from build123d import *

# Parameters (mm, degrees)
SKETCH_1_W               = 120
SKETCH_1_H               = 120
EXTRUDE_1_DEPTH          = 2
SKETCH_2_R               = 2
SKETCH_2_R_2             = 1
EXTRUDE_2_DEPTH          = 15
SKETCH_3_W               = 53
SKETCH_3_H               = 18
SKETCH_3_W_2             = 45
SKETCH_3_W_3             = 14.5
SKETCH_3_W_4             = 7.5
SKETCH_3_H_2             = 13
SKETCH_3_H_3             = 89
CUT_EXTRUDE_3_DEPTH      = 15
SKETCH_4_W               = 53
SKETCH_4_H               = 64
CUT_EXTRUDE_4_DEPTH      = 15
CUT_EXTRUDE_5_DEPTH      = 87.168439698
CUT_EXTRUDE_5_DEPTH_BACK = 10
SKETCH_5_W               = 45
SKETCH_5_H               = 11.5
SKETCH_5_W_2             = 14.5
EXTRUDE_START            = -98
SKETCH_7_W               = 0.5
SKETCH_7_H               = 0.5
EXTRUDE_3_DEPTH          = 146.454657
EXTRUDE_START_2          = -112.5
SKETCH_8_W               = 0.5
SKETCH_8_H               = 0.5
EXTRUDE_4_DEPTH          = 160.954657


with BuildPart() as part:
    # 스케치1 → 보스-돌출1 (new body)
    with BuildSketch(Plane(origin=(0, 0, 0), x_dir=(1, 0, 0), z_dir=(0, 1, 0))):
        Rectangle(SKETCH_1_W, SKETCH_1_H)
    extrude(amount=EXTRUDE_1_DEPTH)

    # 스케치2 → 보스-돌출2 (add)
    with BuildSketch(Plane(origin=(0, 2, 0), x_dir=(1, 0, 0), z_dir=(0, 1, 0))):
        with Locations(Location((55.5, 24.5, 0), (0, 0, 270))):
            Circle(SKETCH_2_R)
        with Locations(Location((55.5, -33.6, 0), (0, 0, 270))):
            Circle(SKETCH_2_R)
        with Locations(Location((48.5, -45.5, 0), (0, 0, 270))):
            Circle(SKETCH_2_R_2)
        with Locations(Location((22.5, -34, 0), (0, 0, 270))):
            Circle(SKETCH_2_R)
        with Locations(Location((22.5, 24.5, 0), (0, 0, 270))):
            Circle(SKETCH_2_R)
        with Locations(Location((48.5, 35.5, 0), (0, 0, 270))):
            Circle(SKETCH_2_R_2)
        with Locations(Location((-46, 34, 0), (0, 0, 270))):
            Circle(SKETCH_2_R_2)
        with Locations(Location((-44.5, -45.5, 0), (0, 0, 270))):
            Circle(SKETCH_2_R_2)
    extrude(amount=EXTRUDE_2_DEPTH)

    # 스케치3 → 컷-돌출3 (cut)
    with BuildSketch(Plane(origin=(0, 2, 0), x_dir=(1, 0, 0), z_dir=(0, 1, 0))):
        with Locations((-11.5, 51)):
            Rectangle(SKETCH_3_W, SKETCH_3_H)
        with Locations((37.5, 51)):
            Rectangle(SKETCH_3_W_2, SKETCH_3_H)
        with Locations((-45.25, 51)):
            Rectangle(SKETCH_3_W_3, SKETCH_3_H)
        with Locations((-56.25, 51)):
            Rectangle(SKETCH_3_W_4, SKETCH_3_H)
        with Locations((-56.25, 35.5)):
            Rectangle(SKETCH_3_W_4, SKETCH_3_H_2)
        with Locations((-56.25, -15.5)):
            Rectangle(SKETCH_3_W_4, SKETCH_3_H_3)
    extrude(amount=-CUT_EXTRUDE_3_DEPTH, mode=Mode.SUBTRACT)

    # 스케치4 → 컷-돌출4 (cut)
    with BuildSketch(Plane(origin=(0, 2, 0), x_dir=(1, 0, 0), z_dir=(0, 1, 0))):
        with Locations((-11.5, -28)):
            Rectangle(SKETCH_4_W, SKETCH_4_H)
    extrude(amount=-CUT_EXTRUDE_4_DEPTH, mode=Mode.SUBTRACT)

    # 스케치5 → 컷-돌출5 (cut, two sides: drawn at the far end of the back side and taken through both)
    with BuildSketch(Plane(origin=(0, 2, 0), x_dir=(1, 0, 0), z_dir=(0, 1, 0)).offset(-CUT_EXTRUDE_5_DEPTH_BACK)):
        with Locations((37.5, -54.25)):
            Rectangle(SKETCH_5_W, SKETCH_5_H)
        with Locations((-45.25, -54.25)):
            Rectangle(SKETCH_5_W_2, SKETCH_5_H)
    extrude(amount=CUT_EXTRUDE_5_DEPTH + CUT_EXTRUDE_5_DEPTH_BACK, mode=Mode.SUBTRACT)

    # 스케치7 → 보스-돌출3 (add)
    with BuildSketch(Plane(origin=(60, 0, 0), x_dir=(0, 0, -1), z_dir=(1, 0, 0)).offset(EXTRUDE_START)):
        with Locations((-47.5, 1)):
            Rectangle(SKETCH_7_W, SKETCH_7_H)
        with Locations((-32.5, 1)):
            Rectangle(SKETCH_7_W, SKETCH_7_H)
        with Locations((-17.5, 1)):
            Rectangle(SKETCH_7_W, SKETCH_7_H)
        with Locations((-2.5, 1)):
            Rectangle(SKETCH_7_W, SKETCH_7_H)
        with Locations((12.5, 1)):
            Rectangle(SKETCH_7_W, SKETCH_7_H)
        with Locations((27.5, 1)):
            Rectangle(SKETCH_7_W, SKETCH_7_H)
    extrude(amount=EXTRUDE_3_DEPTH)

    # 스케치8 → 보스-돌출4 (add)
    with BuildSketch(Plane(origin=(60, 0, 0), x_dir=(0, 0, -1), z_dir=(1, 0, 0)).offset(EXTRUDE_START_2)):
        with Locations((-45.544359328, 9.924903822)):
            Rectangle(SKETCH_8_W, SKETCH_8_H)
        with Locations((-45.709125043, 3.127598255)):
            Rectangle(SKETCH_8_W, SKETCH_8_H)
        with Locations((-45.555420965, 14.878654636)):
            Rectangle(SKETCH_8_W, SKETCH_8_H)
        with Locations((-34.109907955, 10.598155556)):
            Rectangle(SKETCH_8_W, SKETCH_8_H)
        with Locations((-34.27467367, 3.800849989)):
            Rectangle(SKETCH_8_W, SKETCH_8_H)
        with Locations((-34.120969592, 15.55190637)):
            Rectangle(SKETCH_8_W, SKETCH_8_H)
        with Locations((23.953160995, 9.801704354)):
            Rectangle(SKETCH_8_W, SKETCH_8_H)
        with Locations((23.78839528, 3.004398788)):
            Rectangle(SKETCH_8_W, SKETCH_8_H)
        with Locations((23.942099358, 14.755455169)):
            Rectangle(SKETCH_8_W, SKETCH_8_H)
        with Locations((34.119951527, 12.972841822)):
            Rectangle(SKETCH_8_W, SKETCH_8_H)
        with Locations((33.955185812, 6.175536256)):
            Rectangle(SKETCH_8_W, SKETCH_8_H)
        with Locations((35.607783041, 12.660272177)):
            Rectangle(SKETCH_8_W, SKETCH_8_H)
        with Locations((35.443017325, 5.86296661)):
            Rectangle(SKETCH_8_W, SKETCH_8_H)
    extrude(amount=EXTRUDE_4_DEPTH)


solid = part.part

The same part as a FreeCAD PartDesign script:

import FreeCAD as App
import Part
import Sketcher
Q = App.Units.Quantity


def add_polygon(sketch, points):
    """Adds a closed chain of lines whose ends are joined by coincident constraints."""
    first, n = sketch.GeometryCount, len(points)
    for a, b in zip(points, points[1:] + points[:1]):
        sketch.addGeometry(Part.LineSegment(App.Vector(*a, 0), App.Vector(*b, 0)), False)
    for i in range(n):
        sketch.addConstraint(Sketcher.Constraint("Coincident", first + i, 2, first + (i + 1) % n, 1))

doc = App.newDocument("Part")
body = doc.addObject("PartDesign::Body", "Body")

# Sketch on XZ plane
sketch1 = body.newObject("Sketcher::SketchObject", "Sketch")
sketch1.AttachmentSupport = (doc.getObject("XZ_Plane"), [""])
sketch1.MapMode = "FlatFace"
add_polygon(sketch1, [(-60, -60), (-60, 60), (60, 60), (60, -60)])  # lines 0-3
sketch1.addConstraint(Sketcher.Constraint("Vertical", 0))
sketch1.addConstraint(Sketcher.Constraint("Horizontal", 1))
sketch1.addConstraint(Sketcher.Constraint("Vertical", 2))
sketch1.addConstraint(Sketcher.Constraint("Horizontal", 3))
sketch1.addConstraint(Sketcher.Constraint("Symmetric", 0, 2, 2, 2, -1, 1))
sketch1.addConstraint(Sketcher.Constraint("Equal", 3, 0))
sketch1.addConstraint(Sketcher.Constraint("DistanceX", 1, 1, 1, 2, Q("120 mm")))
pad1 = body.newObject("PartDesign::Pad", "Pad")
pad1.Profile = sketch1
pad1.Length = 2
pad1.Reversed = True

# Sketch on XZ plane
sketch2 = body.newObject("Sketcher::SketchObject", "Sketch001")
sketch2.AttachmentSupport = (doc.getObject("XZ_Plane"), [""])
sketch2.MapMode = "FlatFace"
sketch2.AttachmentOffset = App.Placement(App.Vector(0, 0, -2), App.Rotation())
sketch2.addGeometry(Part.Circle(App.Vector(55.5, -24.5, 0), App.Vector(0, 0, 1), 2), False)
sketch2.addGeometry(Part.Circle(App.Vector(55.5, 33.6, 0), App.Vector(0, 0, 1), 2), False)
sketch2.addGeometry(Part.Circle(App.Vector(48.5, 45.5, 0), App.Vector(0, 0, 1), 1), False)
sketch2.addGeometry(Part.Circle(App.Vector(22.5, 34, 0), App.Vector(0, 0, 1), 2), False)
sketch2.addGeometry(Part.Circle(App.Vector(22.5, -24.5, 0), App.Vector(0, 0, 1), 2), False)
sketch2.addGeometry(Part.Circle(App.Vector(48.5, -35.5, 0), App.Vector(0, 0, 1), 1), False)
sketch2.addGeometry(Part.Circle(App.Vector(-46, -34, 0), App.Vector(0, 0, 1), 1), False)
sketch2.addGeometry(Part.Circle(App.Vector(-44.5, 45.5, 0), App.Vector(0, 0, 1), 1), False)
sketch2.addConstraint(Sketcher.Constraint("Equal", 0, 1))
sketch2.addConstraint(Sketcher.Constraint("Equal", 1, 3))
sketch2.addConstraint(Sketcher.Constraint("Equal", 3, 4))
sketch2.addConstraint(Sketcher.Constraint("Equal", 2, 5))
sketch2.addConstraint(Sketcher.Constraint("Equal", 5, 6))
sketch2.addConstraint(Sketcher.Constraint("Equal", 6, 7))
sketch2.addConstraint(Sketcher.Constraint("Horizontal", 0, 3, 4, 3))
sketch2.addConstraint(Sketcher.Constraint("Horizontal", 2, 3, 7, 3))
sketch2.addConstraint(Sketcher.Constraint("Vertical", 0, 3, 1, 3))
sketch2.addConstraint(Sketcher.Constraint("Vertical", 3, 3, 4, 3))
sketch2.addConstraint(Sketcher.Constraint("Vertical", 2, 3, 5, 3))
sketch2.addConstraint(Sketcher.Constraint("Diameter", 0, Q("4 mm")))
sketch2.addConstraint(Sketcher.Constraint("Diameter", 2, Q("2 mm")))
sketch2.addConstraint(Sketcher.Constraint("DistanceY", -1, 1, 3, 3, Q("34 mm")))
sketch2.addConstraint(Sketcher.Constraint("DistanceX", 6, 3, -1, 1, Q("46 mm")))
sketch2.addConstraint(Sketcher.Constraint("DistanceY", 6, 3, -1, 1, Q("34 mm")))
sketch2.addConstraint(Sketcher.Constraint("DistanceX", 2, 3, 1, 3, Q("7 mm")))
sketch2.addConstraint(Sketcher.Constraint("DistanceY", 0, 3, 2, 3, Q("70 mm")))
sketch2.addConstraint(Sketcher.Constraint("DistanceX", 3, 3, 2, 3, Q("26 mm")))
sketch2.addConstraint(Sketcher.Constraint("DistanceY", 5, 3, 0, 3, Q("11 mm")))
sketch2.addConstraint(Sketcher.Constraint("DistanceX", 7, 3, 3, 3, Q("67 mm")))
sketch2.addConstraint(Sketcher.Constraint("DistanceX", -1, 1, 0, 3, Q("55.5 mm")))
sketch2.addConstraint(Sketcher.Constraint("DistanceY", 0, 3, -1, 1, Q("24.5 mm")))
sketch2.addConstraint(Sketcher.Constraint("DistanceY", -1, 1, 1, 3, Q("33.6 mm")))
pad2 = body.newObject("PartDesign::Pad", "Pad001")
pad2.Profile = sketch2
pad2.Length = 15
pad2.Reversed = True

# Sketch on XZ plane
sketch3 = body.newObject("Sketcher::SketchObject", "Sketch002")
sketch3.AttachmentSupport = (doc.getObject("XZ_Plane"), [""])
sketch3.MapMode = "FlatFace"
sketch3.AttachmentOffset = App.Placement(App.Vector(0, 0, -2), App.Rotation())
add_polygon(sketch3, [(60, -42), (60, -60), (-60, -60), (-60, 60), (-52, 60), (-52, -42)])  # lines 0-5
sketch3.addConstraint(Sketcher.Constraint("Vertical", 0))
sketch3.addConstraint(Sketcher.Constraint("Horizontal", 1))
sketch3.addConstraint(Sketcher.Constraint("Vertical", 2))
sketch3.addConstraint(Sketcher.Constraint("Horizontal", 3))
sketch3.addConstraint(Sketcher.Constraint("Vertical", 4))
sketch3.addConstraint(Sketcher.Constraint("Horizontal", 5))
sketch3.addConstraint(Sketcher.Constraint("Symmetric", 0, 2, 2, 2, -1, 1))
sketch3.addConstraint(Sketcher.Constraint("Equal", 1, 2))
sketch3.addConstraint(Sketcher.Constraint("DistanceX", 1, 2, 1, 1, Q("120 mm")))
sketch3.addConstraint(Sketcher.Constraint("DistanceY", 0, 2, 0, 1, Q("18 mm")))
sketch3.addConstraint(Sketcher.Constraint("DistanceX", 3, 1, 3, 2, Q("7.5 mm")))
pocket1 = body.newObject("PartDesign::Pocket", "Pocket")
pocket1.Profile = sketch3
pocket1.Length = 15
pocket1.Reversed = True

# Sketch on XZ plane
sketch4 = body.newObject("Sketcher::SketchObject", "Sketch003")
sketch4.AttachmentSupport = (doc.getObject("XZ_Plane"), [""])
sketch4.MapMode = "FlatFace"
sketch4.AttachmentOffset = App.Placement(App.Vector(0, 0, -2), App.Rotation())
add_polygon(sketch4, [(-38, -4), (-38, 60), (15, 60), (15, -4)])  # lines 0-3
sketch4.addConstraint(Sketcher.Constraint("Vertical", 0))
sketch4.addConstraint(Sketcher.Constraint("Horizontal", 1))
sketch4.addConstraint(Sketcher.Constraint("Vertical", 2))
sketch4.addConstraint(Sketcher.Constraint("Horizontal", 3))
sketch4.addConstraint(Sketcher.Constraint("DistanceX", 1, 1, 1, 2, Q("53 mm")))
sketch4.addConstraint(Sketcher.Constraint("DistanceY", 0, 1, 0, 2, Q("64 mm")))
sketch4.addConstraint(Sketcher.Constraint("DistanceX", 0, 2, -1, 1, Q("38 mm")))
sketch4.addConstraint(Sketcher.Constraint("DistanceY", -1, 1, 0, 2, Q("60 mm")))
pocket2 = body.newObject("PartDesign::Pocket", "Pocket001")
pocket2.Profile = sketch4
pocket2.Length = 15
pocket2.Reversed = True

# Sketch on XZ plane
sketch5 = body.newObject("Sketcher::SketchObject", "Sketch004")
sketch5.AttachmentSupport = (doc.getObject("XZ_Plane"), [""])
sketch5.MapMode = "FlatFace"
sketch5.AttachmentOffset = App.Placement(App.Vector(0, 0, -2), App.Rotation())
add_polygon(sketch5, [(15, 48), (15, 60), (60, 60), (60, 48)])  # lines 0-3
add_polygon(sketch5, [(-52, 48), (-52, 60), (-38, 60), (-38, 48)])  # lines 4-7
sketch5.addConstraint(Sketcher.Constraint("Vertical", 0))
sketch5.addConstraint(Sketcher.Constraint("Horizontal", 1))
sketch5.addConstraint(Sketcher.Constraint("Vertical", 2))
sketch5.addConstraint(Sketcher.Constraint("Horizontal", 3))
sketch5.addConstraint(Sketcher.Constraint("Vertical", 4))
sketch5.addConstraint(Sketcher.Constraint("Horizontal", 5))
sketch5.addConstraint(Sketcher.Constraint("Vertical", 6))
sketch5.addConstraint(Sketcher.Constraint("Horizontal", 7))
sketch5.addConstraint(Sketcher.Constraint("Horizontal", 1, 2, 4, 2))
sketch5.addConstraint(Sketcher.Constraint("Horizontal", 3, 2, 6, 2))
sketch5.addConstraint(Sketcher.Constraint("DistanceX", 1, 1, 1, 2, Q("45 mm")))
sketch5.addConstraint(Sketcher.Constraint("DistanceX", 5, 1, 5, 2, Q("14.5 mm")))
sketch5.addConstraint(Sketcher.Constraint("DistanceY", 0, 1, 0, 2, Q("11.5 mm")))
sketch5.addConstraint(Sketcher.Constraint("DistanceX", -1, 1, 0, 2, Q("15 mm")))
sketch5.addConstraint(Sketcher.Constraint("DistanceY", -1, 1, 0, 2, Q("60 mm")))
sketch5.addConstraint(Sketcher.Constraint("DistanceX", 5, 2, -1, 1, Q("38 mm")))
pocket3 = body.newObject("PartDesign::Pocket", "Pocket002")
pocket3.Profile = sketch5
pocket3.Type = "ThroughAll"
pocket3.Midplane = True

# Sketch on YZ plane
sketch6 = body.newObject("Sketcher::SketchObject", "Sketch005")
sketch6.AttachmentSupport = (doc.getObject("YZ_Plane"), [""])
sketch6.MapMode = "FlatFace"
sketch6.AttachmentOffset = App.Placement(App.Vector(0, 0, -38), App.Rotation())
add_polygon(sketch6, [(1.2, 47.8), (0.8, 47.8), (0.8, 47.2), (1.2, 47.2)])  # lines 0-3
add_polygon(sketch6, [(1.2, 32.8), (0.8, 32.8), (0.8, 32.2), (1.2, 32.2)])  # lines 4-7
add_polygon(sketch6, [(1.2, 17.8), (0.8, 17.8), (0.8, 17.2), (1.2, 17.2)])  # lines 8-11
add_polygon(sketch6, [(1.2, 2.8), (0.8, 2.8), (0.8, 2.2), (1.2, 2.2)])  # lines 12-15
add_polygon(sketch6, [(1.2, -12.2), (0.8, -12.2), (0.8, -12.8), (1.2, -12.8)])  # lines 16-19
add_polygon(sketch6, [(1.2, -27.2), (0.8, -27.2), (0.8, -27.8), (1.2, -27.8)])  # lines 20-23
sketch6.addConstraint(Sketcher.Constraint("Horizontal", 0))
sketch6.addConstraint(Sketcher.Constraint("Vertical", 1))
sketch6.addConstraint(Sketcher.Constraint("Horizontal", 2))
sketch6.addConstraint(Sketcher.Constraint("Vertical", 3))
sketch6.addConstraint(Sketcher.Constraint("Horizontal", 4))
sketch6.addConstraint(Sketcher.Constraint("Vertical", 5))
sketch6.addConstraint(Sketcher.Constraint("Horizontal", 6))
sketch6.addConstraint(Sketcher.Constraint("Vertical", 7))
sketch6.addConstraint(Sketcher.Constraint("Horizontal", 8))
sketch6.addConstraint(Sketcher.Constraint("Vertical", 9))
sketch6.addConstraint(Sketcher.Constraint("Horizontal", 10))
sketch6.addConstraint(Sketcher.Constraint("Vertical", 11))
sketch6.addConstraint(Sketcher.Constraint("Horizontal", 12))
sketch6.addConstraint(Sketcher.Constraint("Vertical", 13))
sketch6.addConstraint(Sketcher.Constraint("Horizontal", 14))
sketch6.addConstraint(Sketcher.Constraint("Vertical", 15))
sketch6.addConstraint(Sketcher.Constraint("Horizontal", 16))
sketch6.addConstraint(Sketcher.Constraint("Vertical", 17))
sketch6.addConstraint(Sketcher.Constraint("Horizontal", 18))
sketch6.addConstraint(Sketcher.Constraint("Vertical", 19))
sketch6.addConstraint(Sketcher.Constraint("Horizontal", 20))
sketch6.addConstraint(Sketcher.Constraint("Vertical", 21))
sketch6.addConstraint(Sketcher.Constraint("Horizontal", 22))
sketch6.addConstraint(Sketcher.Constraint("Vertical", 23))
sketch6.addConstraint(Sketcher.Constraint("Vertical", 1, 2, 4, 2))
sketch6.addConstraint(Sketcher.Constraint("Vertical", 3, 2, 6, 2))
sketch6.addConstraint(Sketcher.Constraint("Vertical", 5, 2, 8, 2))
sketch6.addConstraint(Sketcher.Constraint("Vertical", 7, 2, 10, 2))
sketch6.addConstraint(Sketcher.Constraint("Vertical", 9, 2, 12, 2))
sketch6.addConstraint(Sketcher.Constraint("Vertical", 11, 2, 14, 2))
sketch6.addConstraint(Sketcher.Constraint("Vertical", 13, 2, 16, 2))
sketch6.addConstraint(Sketcher.Constraint("Vertical", 15, 2, 18, 2))
sketch6.addConstraint(Sketcher.Constraint("Vertical", 17, 2, 20, 2))
sketch6.addConstraint(Sketcher.Constraint("Vertical", 19, 2, 22, 2))
sketch6.addConstraint(Sketcher.Constraint("Equal", 22, 1))
sketch6.addConstraint(Sketcher.Constraint("Equal", 3, 5))
sketch6.addConstraint(Sketcher.Constraint("Equal", 7, 9))
sketch6.addConstraint(Sketcher.Constraint("Equal", 11, 13))
sketch6.addConstraint(Sketcher.Constraint("Equal", 15, 17))
sketch6.addConstraint(Sketcher.Constraint("Equal", 19, 21))
sketch6.addConstraint(Sketcher.Constraint("DistanceX", 0, 2, 0, 1, Q("0.5 mm")))
sketch6.addConstraint(Sketcher.Constraint("DistanceY", 4, 2, 0, 2, Q("15 mm")))
sketch6.addConstraint(Sketcher.Constraint("DistanceY", 8, 2, 4, 2, Q("15 mm")))
sketch6.addConstraint(Sketcher.Constraint("DistanceY", 12, 2, 8, 2, Q("15 mm")))
sketch6.addConstraint(Sketcher.Constraint("DistanceY", 16, 2, 12, 2, Q("15 mm")))
sketch6.addConstraint(Sketcher.Constraint("DistanceY", 20, 2, 16, 2, Q("15 mm")))
sketch6.addConstraint(Sketcher.Constraint("DistanceX", -1, 1, 0, 2, Q("0.75 mm")))
sketch6.addConstraint(Sketcher.Constraint("DistanceY", -1, 1, 0, 2, Q("47.75 mm")))
pad3 = body.newObject("PartDesign::Pad", "Pad002")
pad3.Profile = sketch6
pad3.Length = 146.454657

# Sketch on YZ plane
sketch7 = body.newObject("Sketcher::SketchObject", "Sketch006")
sketch7.AttachmentSupport = (doc.getObject("YZ_Plane"), [""])
sketch7.MapMode = "FlatFace"
sketch7.AttachmentOffset = App.Placement(App.Vector(0, 0, -52.5), App.Rotation())
add_polygon(sketch7, [(10.17, 45.79), (9.67, 45.79), (9.67, 45.29), (10.17, 45.29)])  # lines 0-3
add_polygon(sketch7, [(3.38, 45.96), (2.88, 45.96), (2.88, 45.46), (3.38, 45.46)])  # lines 4-7
add_polygon(sketch7, [(15.13, 45.81), (14.63, 45.81), (14.63, 45.31), (15.13, 45.31)])  # lines 8-11
add_polygon(sketch7, [(10.85, 34.36), (10.35, 34.36), (10.35, 33.86), (10.85, 33.86)])  # lines 12-15
add_polygon(sketch7, [(4.05, 34.52), (3.55, 34.52), (3.55, 34.02), (4.05, 34.02)])  # lines 16-19
add_polygon(sketch7, [(15.8, 34.37), (15.3, 34.37), (15.3, 33.87), (15.8, 33.87)])  # lines 20-23
add_polygon(sketch7, [(10.05, -23.7), (9.55, -23.7), (9.55, -24.2), (10.05, -24.2)])  # lines 24-27
add_polygon(sketch7, [(3.25, -23.54), (2.75, -23.54), (2.75, -24.04), (3.25, -24.04)])  # lines 28-31
add_polygon(sketch7, [(15.01, -23.69), (14.51, -23.69), (14.51, -24.19), (15.01, -24.19)])  # lines 32-35
add_polygon(sketch7, [(13.22, -33.87), (12.72, -33.87), (12.72, -34.37), (13.22, -34.37)])  # lines 36-39
add_polygon(sketch7, [(6.43, -33.71), (5.93, -33.71), (5.93, -34.21), (6.43, -34.21)])  # lines 40-43
add_polygon(sketch7, [(12.91, -35.36), (12.41, -35.36), (12.41, -35.86), (12.91, -35.86)])  # lines 44-47
add_polygon(sketch7, [(6.11, -35.19), (5.61, -35.19), (5.61, -35.69), (6.11, -35.69)])  # lines 48-51
sketch7.addConstraint(Sketcher.Constraint("Horizontal", 0))
sketch7.addConstraint(Sketcher.Constraint("Vertical", 1))
sketch7.addConstraint(Sketcher.Constraint("Horizontal", 2))
sketch7.addConstraint(Sketcher.Constraint("Vertical", 3))
sketch7.addConstraint(Sketcher.Constraint("Horizontal", 4))
sketch7.addConstraint(Sketcher.Constraint("Vertical", 5))
sketch7.addConstraint(Sketcher.Constraint("Horizontal", 6))
sketch7.addConstraint(Sketcher.Constraint("Vertical", 7))
sketch7.addConstraint(Sketcher.Constraint("Horizontal", 8))
sketch7.addConstraint(Sketcher.Constraint("Vertical", 9))
sketch7.addConstraint(Sketcher.Constraint("Horizontal", 10))
sketch7.addConstraint(Sketcher.Constraint("Vertical", 11))
sketch7.addConstraint(Sketcher.Constraint("Horizontal", 12))
sketch7.addConstraint(Sketcher.Constraint("Vertical", 13))
sketch7.addConstraint(Sketcher.Constraint("Horizontal", 14))
sketch7.addConstraint(Sketcher.Constraint("Vertical", 15))
sketch7.addConstraint(Sketcher.Constraint("Horizontal", 16))
sketch7.addConstraint(Sketcher.Constraint("Vertical", 17))
sketch7.addConstraint(Sketcher.Constraint("Horizontal", 18))
sketch7.addConstraint(Sketcher.Constraint("Vertical", 19))
sketch7.addConstraint(Sketcher.Constraint("Horizontal", 20))
sketch7.addConstraint(Sketcher.Constraint("Vertical", 21))
sketch7.addConstraint(Sketcher.Constraint("Horizontal", 22))
sketch7.addConstraint(Sketcher.Constraint("Vertical", 23))
sketch7.addConstraint(Sketcher.Constraint("Horizontal", 24))
sketch7.addConstraint(Sketcher.Constraint("Vertical", 25))
sketch7.addConstraint(Sketcher.Constraint("Horizontal", 26))
sketch7.addConstraint(Sketcher.Constraint("Vertical", 27))
sketch7.addConstraint(Sketcher.Constraint("Horizontal", 28))
sketch7.addConstraint(Sketcher.Constraint("Vertical", 29))
sketch7.addConstraint(Sketcher.Constraint("Horizontal", 30))
sketch7.addConstraint(Sketcher.Constraint("Vertical", 31))
sketch7.addConstraint(Sketcher.Constraint("Horizontal", 32))
sketch7.addConstraint(Sketcher.Constraint("Vertical", 33))
sketch7.addConstraint(Sketcher.Constraint("Horizontal", 34))
sketch7.addConstraint(Sketcher.Constraint("Vertical", 35))
sketch7.addConstraint(Sketcher.Constraint("Horizontal", 36))
sketch7.addConstraint(Sketcher.Constraint("Vertical", 37))
sketch7.addConstraint(Sketcher.Constraint("Horizontal", 38))
sketch7.addConstraint(Sketcher.Constraint("Vertical", 39))
sketch7.addConstraint(Sketcher.Constraint("Horizontal", 40))
sketch7.addConstraint(Sketcher.Constraint("Vertical", 41))
sketch7.addConstraint(Sketcher.Constraint("Horizontal", 42))
sketch7.addConstraint(Sketcher.Constraint("Vertical", 43))
sketch7.addConstraint(Sketcher.Constraint("Horizontal", 44))
sketch7.addConstraint(Sketcher.Constraint("Vertical", 45))
sketch7.addConstraint(Sketcher.Constraint("Horizontal", 46))
sketch7.addConstraint(Sketcher.Constraint("Vertical", 47))
sketch7.addConstraint(Sketcher.Constraint("Horizontal", 48))
sketch7.addConstraint(Sketcher.Constraint("Vertical", 49))
sketch7.addConstraint(Sketcher.Constraint("Horizontal", 50))
sketch7.addConstraint(Sketcher.Constraint("Vertical", 51))
sketch7.addConstraint(Sketcher.Constraint("Equal", 2, 4))
sketch7.addConstraint(Sketcher.Constraint("Equal", 6, 8))
sketch7.addConstraint(Sketcher.Constraint("Equal", 10, 12))
sketch7.addConstraint(Sketcher.Constraint("Equal", 14, 16))
sketch7.addConstraint(Sketcher.Constraint("Equal", 18, 20))
sketch7.addConstraint(Sketcher.Constraint("Equal", 22, 24))
sketch7.addConstraint(Sketcher.Constraint("Equal", 26, 28))
sketch7.addConstraint(Sketcher.Constraint("Equal", 30, 32))
sketch7.addConstraint(Sketcher.Constraint("Equal", 34, 36))
sketch7.addConstraint(Sketcher.Constraint("Equal", 38, 40))
sketch7.addConstraint(Sketcher.Constraint("Equal", 42, 44))
sketch7.addConstraint(Sketcher.Constraint("Equal", 46, 48))
sketch7.addConstraint(Sketcher.Constraint("Equal", 50, 1))
sketch7.addConstraint(Sketcher.Constraint("Equal", 3, 5))
sketch7.addConstraint(Sketcher.Constraint("Equal", 7, 9))
sketch7.addConstraint(Sketcher.Constraint("Equal", 11, 13))
sketch7.addConstraint(Sketcher.Constraint("Equal", 15, 17))
sketch7.addConstraint(Sketcher.Constraint("Equal", 19, 21))
sketch7.addConstraint(Sketcher.Constraint("Equal", 23, 25))
sketch7.addConstraint(Sketcher.Constraint("Equal", 27, 29))
sketch7.addConstraint(Sketcher.Constraint("Equal", 31, 33))
sketch7.addConstraint(Sketcher.Constraint("Equal", 35, 37))
sketch7.addConstraint(Sketcher.Constraint("Equal", 39, 41))
sketch7.addConstraint(Sketcher.Constraint("Equal", 43, 45))
sketch7.addConstraint(Sketcher.Constraint("Equal", 47, 49))
sketch7.addConstraint(Sketcher.Constraint("DistanceX", 0, 2, 0, 1, Q("0.5 mm")))
sketch7.addConstraint(Sketcher.Constraint("DistanceX", -1, 1, 4, 2, Q("2.877598 mm")))
sketch7.addConstraint(Sketcher.Constraint("DistanceX", -1, 1, 28, 2, Q("2.754399 mm")))
sketch7.addConstraint(Sketcher.Constraint("DistanceY", 32, 2, -1, 1, Q("23.692099 mm")))
sketch7.addConstraint(Sketcher.Constraint("DistanceX", 12, 2, 9, 2, Q("4.280499 mm")))
sketch7.addConstraint(Sketcher.Constraint("DistanceY", -1, 1, 0, 2, Q("45.794359 mm")))
sketch7.addConstraint(Sketcher.Constraint("DistanceY", -1, 1, 8, 2, Q("45.805421 mm")))
sketch7.addConstraint(Sketcher.Constraint("DistanceX", -1, 1, 16, 2, Q("3.55085 mm")))
sketch7.addConstraint(Sketcher.Constraint("DistanceY", -1, 1, 20, 2, Q("34.37097 mm")))
sketch7.addConstraint(Sketcher.Constraint("DistanceY", 24, 2, -1, 1, Q("23.703161 mm")))
sketch7.addConstraint(Sketcher.Constraint("DistanceX", -1, 1, 36, 2, Q("12.722842 mm")))
sketch7.addConstraint(Sketcher.Constraint("DistanceY", 36, 2, -1, 1, Q("33.869952 mm")))
sketch7.addConstraint(Sketcher.Constraint("DistanceX", 3, 2, 8, 2, Q("4.453751 mm")))
sketch7.addConstraint(Sketcher.Constraint("DistanceY", 12, 2, 2, 2, Q("10.934451 mm")))
sketch7.addConstraint(Sketcher.Constraint("DistanceY", 16, 2, 6, 2, Q("10.934451 mm")))
sketch7.addConstraint(Sketcher.Constraint("DistanceX", 15, 2, 20, 2, Q("4.453751 mm")))
sketch7.addConstraint(Sketcher.Constraint("DistanceX", 24, 2, 13, 2, Q("0.796451 mm")))
sketch7.addConstraint(Sketcher.Constraint("DistanceY", 28, 2, 17, 2, Q("57.563069 mm")))
sketch7.addConstraint(Sketcher.Constraint("DistanceX", 27, 2, 32, 2, Q("4.453751 mm")))
sketch7.addConstraint(Sketcher.Constraint("DistanceY", 40, 2, 30, 2, Q("9.666791 mm")))
sketch7.addConstraint(Sketcher.Constraint("DistanceX", 44, 2, 37, 2, Q("0.31257 mm")))
sketch7.addConstraint(Sketcher.Constraint("DistanceY", 44, 2, 37, 2, Q("0.987832 mm")))
sketch7.addConstraint(Sketcher.Constraint("DistanceX", 48, 2, 41, 2, Q("0.31257 mm")))
sketch7.addConstraint(Sketcher.Constraint("DistanceY", 48, 2, 41, 2, Q("0.987832 mm")))
sketch7.addConstraint(Sketcher.Constraint("DistanceX", -1, 1, 0, 2, Q("9.674904 mm")))
sketch7.addConstraint(Sketcher.Constraint("DistanceY", -1, 1, 4, 2, Q("45.959125 mm")))
sketch7.addConstraint(Sketcher.Constraint("DistanceX", -1, 1, 40, 2, Q("5.925536 mm")))
pad4 = body.newObject("PartDesign::Pad", "Pad003")
pad4.Profile = sketch7
pad4.Length = 160.954657

doc.recompute()
